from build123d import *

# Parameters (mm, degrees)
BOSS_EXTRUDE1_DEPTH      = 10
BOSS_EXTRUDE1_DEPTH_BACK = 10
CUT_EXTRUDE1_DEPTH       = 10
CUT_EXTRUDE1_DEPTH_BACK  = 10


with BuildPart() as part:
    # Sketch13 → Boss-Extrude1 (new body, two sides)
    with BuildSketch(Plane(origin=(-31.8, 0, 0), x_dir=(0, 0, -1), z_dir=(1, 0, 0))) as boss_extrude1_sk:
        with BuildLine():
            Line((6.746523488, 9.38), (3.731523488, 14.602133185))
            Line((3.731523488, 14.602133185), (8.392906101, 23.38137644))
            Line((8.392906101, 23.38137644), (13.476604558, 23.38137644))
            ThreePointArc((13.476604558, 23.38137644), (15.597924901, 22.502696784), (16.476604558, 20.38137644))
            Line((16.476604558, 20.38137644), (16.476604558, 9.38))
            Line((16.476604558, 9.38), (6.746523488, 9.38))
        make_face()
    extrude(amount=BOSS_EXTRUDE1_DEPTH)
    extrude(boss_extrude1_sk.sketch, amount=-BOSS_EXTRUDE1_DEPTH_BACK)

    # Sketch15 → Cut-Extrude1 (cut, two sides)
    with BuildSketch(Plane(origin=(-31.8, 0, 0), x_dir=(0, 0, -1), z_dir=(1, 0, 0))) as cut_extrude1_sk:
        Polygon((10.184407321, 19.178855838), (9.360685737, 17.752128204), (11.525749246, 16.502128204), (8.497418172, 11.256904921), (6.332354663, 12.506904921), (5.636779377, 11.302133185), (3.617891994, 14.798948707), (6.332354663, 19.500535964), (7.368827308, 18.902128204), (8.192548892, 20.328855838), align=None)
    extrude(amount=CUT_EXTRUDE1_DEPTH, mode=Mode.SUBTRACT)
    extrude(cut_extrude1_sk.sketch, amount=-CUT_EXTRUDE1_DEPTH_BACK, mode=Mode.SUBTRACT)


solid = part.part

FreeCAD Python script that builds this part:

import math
import FreeCAD as App
import Part
import Sketcher

V = App.Vector
Q = App.Units.Quantity

doc = App.newDocument("Part")
body = doc.addObject("PartDesign::Body", "Body")

sketch1 = doc.addObject("Sketcher::SketchObject", "Sketch")
body.addObject(sketch1)
sketch1.AttachmentSupport = (doc.YZ_Plane, [""])
sketch1.MapMode = "FlatFace"
sketch1.AttachmentOffset = App.Placement(V(0, 0, -31.8), App.Rotation())
sketch1.addGeometry(Part.LineSegment(V(14.602133, -3.731523, 0), V(9.38, -6.746523, 0)), False)
sketch1.addGeometry(Part.LineSegment(V(9.38, -6.746523, 0), V(9.38, -16.476605, 0)), False)
sketch1.addGeometry(Part.LineSegment(V(9.38, -16.476605, 0), V(20.381376, -16.476605, 0)), False)
sketch1.addGeometry(Part.ArcOfCircle(Part.Circle(V(20.381376, -13.476605, 0), V(0, 0, 1), 3), math.radians(-90), math.radians(0)), False)
sketch1.addGeometry(Part.LineSegment(V(23.381376, -13.476605, 0), V(23.381376, -8.392906, 0)), False)
sketch1.addGeometry(Part.LineSegment(V(23.381376, -8.392906, 0), V(14.602133, -3.731523, 0)), False)
sketch1.addConstraint(Sketcher.Constraint("Coincident", 0, 2, 1, 1))
sketch1.addConstraint(Sketcher.Constraint("Coincident", 1, 2, 2, 1))
sketch1.addConstraint(Sketcher.Constraint("Tangent", 2, 2, 3, 1))
sketch1.addConstraint(Sketcher.Constraint("Tangent", 3, 2, 4, 1))
sketch1.addConstraint(Sketcher.Constraint("Coincident", 4, 2, 5, 1))
sketch1.addConstraint(Sketcher.Constraint("Coincident", 5, 2, 0, 1))
sketch1.addConstraint(Sketcher.Constraint("Vertical", 1))
sketch1.addConstraint(Sketcher.Constraint("Horizontal", 2))
sketch1.addConstraint(Sketcher.Constraint("Vertical", 4))
sketch1.addConstraint(Sketcher.Constraint("Radius", 3, Q("3 mm")))
sketch1.addConstraint(Sketcher.Constraint("Angle", 0, Q("-150 deg")))
sketch1.addConstraint(Sketcher.Constraint("Distance", 0, Q("6.03 mm")))
sketch1.addConstraint(Sketcher.Constraint("Distance", 5, Q("9.94 mm")))
sketch1.addConstraint(Sketcher.Constraint("DistanceX", -1, 1, 0, 2, Q("9.38 mm")))
sketch1.addConstraint(Sketcher.Constraint("DistanceY", 4, 1, 4, 2, Q("5.083698 mm")))
sketch1.addConstraint(Sketcher.Constraint("DistanceY", 1, 2, 1, 1, Q("9.730081 mm")))
sketch1.addConstraint(Sketcher.Constraint("DistanceY", 3, 3, -1, 1, Q("13.476605 mm")))
pad1 = doc.addObject("PartDesign::Pad", "Pad")
body.addObject(pad1)
pad1.Profile = sketch1
pad1.Type = "TwoLengths"
pad1.Length = 10
pad1.Length2 = 10

sketch2 = doc.addObject("Sketcher::SketchObject", "Sketch001")
body.addObject(sketch2)
sketch2.AttachmentSupport = (doc.YZ_Plane, [""])
sketch2.MapMode = "FlatFace"
sketch2.AttachmentOffset = App.Placement(V(0, 0, -31.8), App.Rotation())
sketch2.addGeometry(Part.LineSegment(V(17.752128, -9.360686, 0), V(19.178856, -10.184407, 0)), False)
sketch2.addGeometry(Part.LineSegment(V(19.178856, -10.184407, 0), V(20.328856, -8.192549, 0)), False)
sketch2.addGeometry(Part.LineSegment(V(20.328856, -8.192549, 0), V(18.902128, -7.368827, 0)), False)
sketch2.addGeometry(Part.LineSegment(V(18.902128, -7.368827, 0), V(19.500536, -6.332355, 0)), False)
sketch2.addGeometry(Part.LineSegment(V(19.500536, -6.332355, 0), V(14.798949, -3.617892, 0)), False)
sketch2.addGeometry(Part.LineSegment(V(14.798949, -3.617892, 0), V(11.302133, -5.636779, 0)), False)
sketch2.addGeometry(Part.LineSegment(V(11.302133, -5.636779, 0), V(12.506905, -6.332355, 0)), False)
sketch2.addGeometry(Part.LineSegment(V(12.506905, -6.332355, 0), V(11.256905, -8.497418, 0)), False)
sketch2.addGeometry(Part.LineSegment(V(11.256905, -8.497418, 0), V(16.502128, -11.525749, 0)), False)
sketch2.addGeometry(Part.LineSegment(V(16.502128, -11.525749, 0), V(17.752128, -9.360686, 0)), False)
sketch2.addConstraint(Sketcher.Constraint("Coincident", 0, 2, 1, 1))
sketch2.addConstraint(Sketcher.Constraint("Coincident", 1, 2, 2, 1))
sketch2.addConstraint(Sketcher.Constraint("Coincident", 2, 2, 3, 1))
sketch2.addConstraint(Sketcher.Constraint("Coincident", 3, 2, 4, 1))
sketch2.addConstraint(Sketcher.Constraint("Coincident", 4, 2, 5, 1))
sketch2.addConstraint(Sketcher.Constraint("Coincident", 5, 2, 6, 1))
sketch2.addConstraint(Sketcher.Constraint("Coincident", 6, 2, 7, 1))
sketch2.addConstraint(Sketcher.Constraint("Coincident", 7, 2, 8, 1))
sketch2.addConstraint(Sketcher.Constraint("Coincident", 8, 2, 9, 1))
sketch2.addConstraint(Sketcher.Constraint("Coincident", 9, 2, 0, 1))
sketch2.addConstraint(Sketcher.Constraint("Perpendicular", 0, 1))
sketch2.addConstraint(Sketcher.Constraint("Perpendicular", 1, 2))
sketch2.addConstraint(Sketcher.Constraint("Perpendicular", 2, 3))
sketch2.addConstraint(Sketcher.Constraint("Perpendicular", 3, 4))
sketch2.addConstraint(Sketcher.Constraint("Parallel", 4, 6))
sketch2.addConstraint(Sketcher.Constraint("Perpendicular", 6, 7))
sketch2.addConstraint(Sketcher.Constraint("Perpendicular", 7, 8))
sketch2.addConstraint(Sketcher.Constraint("Perpendicular", 8, 9))
sketch2.addConstraint(Sketcher.Constraint("Horizontal", 3, 2, 6, 2))
sketch2.addConstraint(Sketcher.Constraint("Equal", 0, 2))
sketch2.addConstraint(Sketcher.Constraint("Equal", 7, 9))
sketch2.addConstraint(Sketcher.Constraint("Angle", 0, Q("-30 deg")))
sketch2.addConstraint(Sketcher.Constraint("Angle", 5, Q("-150 deg")))
sketch2.addConstraint(Sketcher.Constraint("Distance", 1, Q("2.3 mm")))
sketch2.addConstraint(Sketcher.Constraint("Distance", 7, Q("2.5 mm")))
sketch2.addConstraint(Sketcher.Constraint("DistanceY", 8, 2, 1, 2, Q("3.3332 mm")))
sketch2.addConstraint(Sketcher.Constraint("Distance", 6, Q("1.391151 mm")))
sketch2.addConstraint(Sketcher.Constraint("DistanceY", 1, 2, -1, 1, Q("8.192549 mm")))
sketch2.addConstraint(Sketcher.Constraint("DistanceX", -1, 1, 2, 2, Q("18.902128 mm")))
sketch2.addConstraint(Sketcher.Constraint("DistanceX", -1, 1, 4, 2, Q("14.798949 mm")))
pocket1 = doc.addObject("PartDesign::Pocket", "Pocket")
body.addObject(pocket1)
pocket1.Profile = sketch2
pocket1.Type = "ThroughAll"
pocket1.Midplane = True

doc.recompute()
